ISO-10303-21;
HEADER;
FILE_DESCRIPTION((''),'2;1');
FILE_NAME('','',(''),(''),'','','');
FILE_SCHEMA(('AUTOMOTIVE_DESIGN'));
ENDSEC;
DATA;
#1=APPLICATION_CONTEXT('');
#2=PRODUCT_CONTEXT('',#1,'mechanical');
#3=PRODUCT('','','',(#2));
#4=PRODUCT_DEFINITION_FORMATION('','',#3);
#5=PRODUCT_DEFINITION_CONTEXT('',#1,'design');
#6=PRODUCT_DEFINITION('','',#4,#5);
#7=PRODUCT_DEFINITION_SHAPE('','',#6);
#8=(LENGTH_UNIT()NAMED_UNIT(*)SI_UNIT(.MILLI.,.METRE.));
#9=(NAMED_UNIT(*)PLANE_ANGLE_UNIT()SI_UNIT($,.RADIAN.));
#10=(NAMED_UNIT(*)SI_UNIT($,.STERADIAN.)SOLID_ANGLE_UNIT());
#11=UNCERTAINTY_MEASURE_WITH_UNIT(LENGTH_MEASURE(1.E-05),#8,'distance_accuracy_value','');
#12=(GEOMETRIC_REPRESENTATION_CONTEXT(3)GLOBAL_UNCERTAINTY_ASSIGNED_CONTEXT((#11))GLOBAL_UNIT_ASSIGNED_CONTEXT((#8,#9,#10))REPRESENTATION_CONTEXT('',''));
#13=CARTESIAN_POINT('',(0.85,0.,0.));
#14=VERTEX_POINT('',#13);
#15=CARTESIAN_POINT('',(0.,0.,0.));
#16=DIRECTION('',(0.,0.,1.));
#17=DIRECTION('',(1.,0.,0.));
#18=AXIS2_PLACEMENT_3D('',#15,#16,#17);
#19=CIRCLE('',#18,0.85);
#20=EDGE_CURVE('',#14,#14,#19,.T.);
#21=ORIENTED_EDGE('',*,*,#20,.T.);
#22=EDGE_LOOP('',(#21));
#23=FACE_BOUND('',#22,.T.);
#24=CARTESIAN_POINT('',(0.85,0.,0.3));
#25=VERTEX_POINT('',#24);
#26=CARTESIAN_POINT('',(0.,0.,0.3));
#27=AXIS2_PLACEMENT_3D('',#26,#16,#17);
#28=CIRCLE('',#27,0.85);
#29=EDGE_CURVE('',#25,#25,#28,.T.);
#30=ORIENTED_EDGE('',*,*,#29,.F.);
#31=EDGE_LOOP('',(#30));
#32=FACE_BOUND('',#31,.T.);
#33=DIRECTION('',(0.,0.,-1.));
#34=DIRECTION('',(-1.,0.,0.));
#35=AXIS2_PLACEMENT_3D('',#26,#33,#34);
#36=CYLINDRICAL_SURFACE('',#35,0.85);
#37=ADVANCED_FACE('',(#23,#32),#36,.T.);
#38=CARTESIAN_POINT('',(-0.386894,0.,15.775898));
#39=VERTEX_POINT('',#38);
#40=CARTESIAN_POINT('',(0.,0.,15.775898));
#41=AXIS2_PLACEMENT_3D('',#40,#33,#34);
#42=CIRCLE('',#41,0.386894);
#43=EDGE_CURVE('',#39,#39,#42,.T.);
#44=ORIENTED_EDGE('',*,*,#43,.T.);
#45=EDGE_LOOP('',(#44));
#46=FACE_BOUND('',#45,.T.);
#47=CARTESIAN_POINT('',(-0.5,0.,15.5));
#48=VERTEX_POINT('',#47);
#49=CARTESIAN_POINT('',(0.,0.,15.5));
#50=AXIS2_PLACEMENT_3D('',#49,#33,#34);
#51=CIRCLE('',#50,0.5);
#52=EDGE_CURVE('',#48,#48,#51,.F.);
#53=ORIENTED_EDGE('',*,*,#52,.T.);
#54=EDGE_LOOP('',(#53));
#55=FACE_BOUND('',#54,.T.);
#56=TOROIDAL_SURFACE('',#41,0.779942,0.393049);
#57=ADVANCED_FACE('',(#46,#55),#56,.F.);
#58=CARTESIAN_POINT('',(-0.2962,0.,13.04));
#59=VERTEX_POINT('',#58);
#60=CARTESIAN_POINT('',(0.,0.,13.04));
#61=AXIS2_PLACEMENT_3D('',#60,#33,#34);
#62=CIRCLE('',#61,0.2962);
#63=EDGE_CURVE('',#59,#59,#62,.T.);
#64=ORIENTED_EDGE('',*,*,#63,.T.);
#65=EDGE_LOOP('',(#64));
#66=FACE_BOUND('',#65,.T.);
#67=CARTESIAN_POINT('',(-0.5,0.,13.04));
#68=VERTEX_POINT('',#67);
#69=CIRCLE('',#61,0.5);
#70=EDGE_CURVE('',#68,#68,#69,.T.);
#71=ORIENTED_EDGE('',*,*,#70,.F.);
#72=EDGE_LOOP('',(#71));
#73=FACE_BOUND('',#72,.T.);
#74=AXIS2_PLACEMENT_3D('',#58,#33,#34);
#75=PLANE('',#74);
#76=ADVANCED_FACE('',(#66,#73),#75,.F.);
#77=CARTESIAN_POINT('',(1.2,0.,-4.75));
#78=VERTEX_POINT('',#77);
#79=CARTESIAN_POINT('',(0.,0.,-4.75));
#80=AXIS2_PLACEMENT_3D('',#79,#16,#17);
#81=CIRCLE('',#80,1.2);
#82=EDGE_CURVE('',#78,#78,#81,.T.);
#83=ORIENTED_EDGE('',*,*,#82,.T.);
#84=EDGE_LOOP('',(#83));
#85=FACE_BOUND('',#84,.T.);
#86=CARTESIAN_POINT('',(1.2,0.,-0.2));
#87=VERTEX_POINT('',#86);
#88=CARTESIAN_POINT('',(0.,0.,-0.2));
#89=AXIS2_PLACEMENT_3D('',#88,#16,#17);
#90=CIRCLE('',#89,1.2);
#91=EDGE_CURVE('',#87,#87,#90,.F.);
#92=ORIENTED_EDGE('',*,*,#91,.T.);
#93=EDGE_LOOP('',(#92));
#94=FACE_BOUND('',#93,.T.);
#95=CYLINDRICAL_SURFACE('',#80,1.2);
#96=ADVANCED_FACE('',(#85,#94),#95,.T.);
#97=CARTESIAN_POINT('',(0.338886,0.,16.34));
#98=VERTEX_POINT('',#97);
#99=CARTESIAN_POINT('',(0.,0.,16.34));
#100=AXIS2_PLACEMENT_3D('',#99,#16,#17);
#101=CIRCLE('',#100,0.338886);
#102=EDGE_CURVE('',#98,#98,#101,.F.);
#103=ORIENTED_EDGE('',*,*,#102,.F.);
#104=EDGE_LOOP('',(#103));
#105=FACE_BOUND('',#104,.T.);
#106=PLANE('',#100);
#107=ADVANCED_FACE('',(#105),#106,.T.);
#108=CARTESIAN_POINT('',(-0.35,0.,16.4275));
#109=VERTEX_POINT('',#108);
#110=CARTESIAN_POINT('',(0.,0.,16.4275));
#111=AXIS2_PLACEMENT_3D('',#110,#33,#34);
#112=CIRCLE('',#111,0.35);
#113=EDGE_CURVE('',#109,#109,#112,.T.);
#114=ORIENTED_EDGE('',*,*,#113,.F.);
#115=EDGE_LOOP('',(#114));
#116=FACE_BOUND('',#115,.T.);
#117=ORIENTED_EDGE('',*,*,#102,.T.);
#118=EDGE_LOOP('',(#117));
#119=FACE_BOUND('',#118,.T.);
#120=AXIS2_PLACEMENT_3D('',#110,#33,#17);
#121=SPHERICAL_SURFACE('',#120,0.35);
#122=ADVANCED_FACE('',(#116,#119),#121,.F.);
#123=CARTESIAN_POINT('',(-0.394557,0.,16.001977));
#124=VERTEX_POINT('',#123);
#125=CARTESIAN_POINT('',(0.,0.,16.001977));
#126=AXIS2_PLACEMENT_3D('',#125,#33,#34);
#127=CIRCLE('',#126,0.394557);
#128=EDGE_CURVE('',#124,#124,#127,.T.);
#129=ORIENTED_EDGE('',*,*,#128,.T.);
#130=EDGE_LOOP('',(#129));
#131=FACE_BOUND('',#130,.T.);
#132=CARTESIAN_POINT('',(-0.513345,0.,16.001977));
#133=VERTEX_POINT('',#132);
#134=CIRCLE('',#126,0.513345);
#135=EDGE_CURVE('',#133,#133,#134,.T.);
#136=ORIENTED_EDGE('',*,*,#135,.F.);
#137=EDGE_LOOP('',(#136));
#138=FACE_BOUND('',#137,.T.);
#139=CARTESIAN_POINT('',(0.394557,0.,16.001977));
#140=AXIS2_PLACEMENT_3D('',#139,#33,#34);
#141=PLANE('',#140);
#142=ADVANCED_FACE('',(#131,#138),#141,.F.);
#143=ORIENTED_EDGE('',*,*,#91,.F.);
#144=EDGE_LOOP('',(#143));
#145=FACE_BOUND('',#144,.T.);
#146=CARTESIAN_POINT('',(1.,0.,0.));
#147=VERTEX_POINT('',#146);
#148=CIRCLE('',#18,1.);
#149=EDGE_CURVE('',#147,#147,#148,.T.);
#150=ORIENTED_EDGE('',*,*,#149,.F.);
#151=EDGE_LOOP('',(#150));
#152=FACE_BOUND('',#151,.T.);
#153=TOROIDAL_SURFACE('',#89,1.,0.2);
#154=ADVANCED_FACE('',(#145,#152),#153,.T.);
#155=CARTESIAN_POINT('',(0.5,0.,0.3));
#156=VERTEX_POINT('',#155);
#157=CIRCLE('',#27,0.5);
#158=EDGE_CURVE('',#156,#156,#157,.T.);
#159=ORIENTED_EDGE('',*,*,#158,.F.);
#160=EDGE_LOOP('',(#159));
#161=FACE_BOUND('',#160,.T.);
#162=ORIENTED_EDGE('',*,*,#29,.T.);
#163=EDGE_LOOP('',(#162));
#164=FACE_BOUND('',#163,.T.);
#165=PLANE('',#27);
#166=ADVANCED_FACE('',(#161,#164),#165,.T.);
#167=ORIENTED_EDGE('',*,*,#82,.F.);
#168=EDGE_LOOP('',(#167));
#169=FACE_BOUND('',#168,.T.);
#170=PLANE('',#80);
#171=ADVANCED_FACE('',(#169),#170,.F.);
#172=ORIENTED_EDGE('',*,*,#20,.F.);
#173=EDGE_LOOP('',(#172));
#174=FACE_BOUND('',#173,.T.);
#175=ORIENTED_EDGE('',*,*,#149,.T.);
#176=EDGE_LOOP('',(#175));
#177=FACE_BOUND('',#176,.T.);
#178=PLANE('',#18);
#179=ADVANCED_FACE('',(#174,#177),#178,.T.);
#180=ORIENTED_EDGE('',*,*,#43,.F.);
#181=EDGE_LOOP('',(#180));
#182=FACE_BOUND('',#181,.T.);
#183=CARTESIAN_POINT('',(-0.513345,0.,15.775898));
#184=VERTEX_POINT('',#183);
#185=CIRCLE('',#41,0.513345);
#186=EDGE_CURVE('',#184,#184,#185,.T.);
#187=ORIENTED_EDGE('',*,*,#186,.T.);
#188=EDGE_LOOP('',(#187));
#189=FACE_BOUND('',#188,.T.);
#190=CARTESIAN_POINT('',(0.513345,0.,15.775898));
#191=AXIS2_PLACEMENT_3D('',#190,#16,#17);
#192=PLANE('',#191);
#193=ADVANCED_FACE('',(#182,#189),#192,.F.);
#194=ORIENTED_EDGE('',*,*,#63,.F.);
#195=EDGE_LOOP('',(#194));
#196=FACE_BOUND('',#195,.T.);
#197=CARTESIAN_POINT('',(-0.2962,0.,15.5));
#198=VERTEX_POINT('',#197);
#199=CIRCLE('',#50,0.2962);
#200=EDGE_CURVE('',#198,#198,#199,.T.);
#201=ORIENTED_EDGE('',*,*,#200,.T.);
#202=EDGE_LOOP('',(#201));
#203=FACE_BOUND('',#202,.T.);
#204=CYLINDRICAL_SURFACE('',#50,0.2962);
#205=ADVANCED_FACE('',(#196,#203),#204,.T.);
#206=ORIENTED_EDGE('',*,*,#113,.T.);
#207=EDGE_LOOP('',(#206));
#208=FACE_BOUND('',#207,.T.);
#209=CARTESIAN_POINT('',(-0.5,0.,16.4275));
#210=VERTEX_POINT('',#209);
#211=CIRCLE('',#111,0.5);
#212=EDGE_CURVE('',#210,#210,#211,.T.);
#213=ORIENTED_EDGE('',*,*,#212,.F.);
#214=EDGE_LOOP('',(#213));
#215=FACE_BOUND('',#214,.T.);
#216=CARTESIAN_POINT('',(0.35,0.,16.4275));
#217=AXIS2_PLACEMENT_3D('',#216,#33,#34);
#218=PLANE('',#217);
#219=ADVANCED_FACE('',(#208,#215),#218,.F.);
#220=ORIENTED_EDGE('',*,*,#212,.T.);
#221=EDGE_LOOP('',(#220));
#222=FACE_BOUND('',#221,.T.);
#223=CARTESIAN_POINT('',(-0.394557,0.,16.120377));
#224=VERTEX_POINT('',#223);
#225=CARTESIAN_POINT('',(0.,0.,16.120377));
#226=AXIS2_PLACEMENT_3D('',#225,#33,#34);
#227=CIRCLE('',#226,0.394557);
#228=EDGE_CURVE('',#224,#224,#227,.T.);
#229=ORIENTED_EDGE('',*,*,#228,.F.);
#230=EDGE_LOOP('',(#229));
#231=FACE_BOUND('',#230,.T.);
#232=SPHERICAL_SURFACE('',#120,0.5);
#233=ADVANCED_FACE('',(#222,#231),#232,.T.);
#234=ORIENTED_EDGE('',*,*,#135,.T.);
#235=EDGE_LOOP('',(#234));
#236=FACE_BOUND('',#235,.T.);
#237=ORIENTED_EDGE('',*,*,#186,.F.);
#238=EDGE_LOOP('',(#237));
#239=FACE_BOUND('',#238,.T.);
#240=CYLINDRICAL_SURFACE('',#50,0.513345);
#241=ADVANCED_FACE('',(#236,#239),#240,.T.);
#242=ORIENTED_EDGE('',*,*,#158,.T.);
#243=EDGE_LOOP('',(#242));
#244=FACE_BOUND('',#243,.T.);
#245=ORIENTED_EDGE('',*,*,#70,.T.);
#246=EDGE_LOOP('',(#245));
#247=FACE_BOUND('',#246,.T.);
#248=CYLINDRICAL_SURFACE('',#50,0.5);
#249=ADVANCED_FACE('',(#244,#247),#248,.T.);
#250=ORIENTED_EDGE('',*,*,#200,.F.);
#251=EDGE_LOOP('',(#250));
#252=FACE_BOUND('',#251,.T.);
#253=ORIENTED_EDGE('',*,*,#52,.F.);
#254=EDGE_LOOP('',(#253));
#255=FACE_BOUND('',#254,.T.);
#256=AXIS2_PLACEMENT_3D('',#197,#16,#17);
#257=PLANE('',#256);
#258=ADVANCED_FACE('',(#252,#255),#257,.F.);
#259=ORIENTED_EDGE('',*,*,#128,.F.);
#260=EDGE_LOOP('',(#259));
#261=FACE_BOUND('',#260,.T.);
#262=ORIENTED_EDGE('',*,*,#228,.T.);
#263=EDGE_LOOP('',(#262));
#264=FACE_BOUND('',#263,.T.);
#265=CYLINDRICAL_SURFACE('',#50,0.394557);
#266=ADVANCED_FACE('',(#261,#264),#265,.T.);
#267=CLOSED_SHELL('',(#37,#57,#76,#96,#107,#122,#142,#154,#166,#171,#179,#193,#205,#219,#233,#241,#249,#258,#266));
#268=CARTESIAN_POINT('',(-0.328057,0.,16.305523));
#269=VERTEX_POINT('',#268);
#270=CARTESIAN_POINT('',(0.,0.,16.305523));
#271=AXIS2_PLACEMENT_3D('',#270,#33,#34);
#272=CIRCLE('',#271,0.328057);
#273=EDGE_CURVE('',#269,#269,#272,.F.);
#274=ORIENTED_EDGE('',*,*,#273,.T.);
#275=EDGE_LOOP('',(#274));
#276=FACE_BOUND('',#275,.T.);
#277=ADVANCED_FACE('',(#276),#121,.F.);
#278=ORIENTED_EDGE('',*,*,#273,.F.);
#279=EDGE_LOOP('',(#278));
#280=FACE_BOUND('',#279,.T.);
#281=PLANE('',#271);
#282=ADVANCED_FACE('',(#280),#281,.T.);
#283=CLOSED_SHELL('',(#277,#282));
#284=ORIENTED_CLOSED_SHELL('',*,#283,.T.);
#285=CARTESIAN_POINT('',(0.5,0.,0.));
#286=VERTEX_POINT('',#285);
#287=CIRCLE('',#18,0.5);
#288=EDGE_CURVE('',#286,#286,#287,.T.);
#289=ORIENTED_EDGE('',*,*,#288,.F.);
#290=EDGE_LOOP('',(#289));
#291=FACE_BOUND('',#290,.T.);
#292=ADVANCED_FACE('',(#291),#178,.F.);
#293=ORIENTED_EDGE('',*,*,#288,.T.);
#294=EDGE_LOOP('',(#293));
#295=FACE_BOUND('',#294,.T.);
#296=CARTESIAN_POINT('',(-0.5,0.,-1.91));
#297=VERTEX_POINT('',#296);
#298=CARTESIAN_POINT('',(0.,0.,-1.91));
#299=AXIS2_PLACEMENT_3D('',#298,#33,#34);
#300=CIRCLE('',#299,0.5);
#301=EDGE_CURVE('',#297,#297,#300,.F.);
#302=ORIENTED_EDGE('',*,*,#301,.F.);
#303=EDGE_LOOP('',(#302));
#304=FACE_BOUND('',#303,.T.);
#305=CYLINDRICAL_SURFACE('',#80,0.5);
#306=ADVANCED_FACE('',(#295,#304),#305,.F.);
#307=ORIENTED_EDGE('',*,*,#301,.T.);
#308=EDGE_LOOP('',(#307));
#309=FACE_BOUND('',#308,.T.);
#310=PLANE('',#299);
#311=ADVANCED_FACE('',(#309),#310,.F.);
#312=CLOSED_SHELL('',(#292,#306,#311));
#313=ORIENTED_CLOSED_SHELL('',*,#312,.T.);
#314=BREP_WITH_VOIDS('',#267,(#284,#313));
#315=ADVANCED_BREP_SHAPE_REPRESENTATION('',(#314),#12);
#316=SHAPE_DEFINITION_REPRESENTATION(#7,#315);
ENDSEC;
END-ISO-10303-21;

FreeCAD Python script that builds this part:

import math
import FreeCAD as App
import Part
import Sketcher
from FreeCAD import Vector
Q = App.Units.Quantity


def edges_at(feature, points):
    """Names of the edges that pass closest to the given points."""
    edges = feature.Shape.Edges
    near = lambda p: min(range(len(edges)), key=lambda i: edges[i].distToShape(Part.Vertex(*p))[0])
    return sorted({f"Edge{near(p) + 1}" for p in points})

doc = App.newDocument("Part")
body = doc.addObject("PartDesign::Body", "Body")

# Sketch on XY plane
sketch1 = body.newObject("Sketcher::SketchObject", "Sketch")
sketch1.AttachmentSupport = (doc.getObject("XY_Plane"), [""])
sketch1.MapMode = "FlatFace"
sketch1.addGeometry(Part.Circle(Vector(0, 0, 0), Vector(0, 0, 1), 0.5), False)
sketch1.addConstraint([
    Sketcher.Constraint("Coincident", 0, 3, -1, 1),
    Sketcher.Constraint("Diameter", 0, Q("1 mm")),
])
pad1 = body.newObject("PartDesign::Pad", "Pad")
pad1.Profile = sketch1
pad1.Length = 15.5
body2 = doc.addObject("PartDesign::Body", "Body001")

# Sketch on XY plane
sketch2 = body2.newObject("Sketcher::SketchObject", "Sketch001")
sketch2.AttachmentSupport = (doc.getObject("XY_Plane001"), [""])
sketch2.MapMode = "FlatFace"
sketch2.addGeometry([
    Part.Circle(Vector(0, 0, 0), Vector(0, 0, 1), 1.2),
    Part.Circle(Vector(0, 0, 0), Vector(0, 0, 1), 0.5),
], False)
sketch2.addConstraint([
    Sketcher.Constraint("Coincident", 0, 3, -1, 1),
    Sketcher.Constraint("Coincident", 1, 3, -1, 1),
    Sketcher.Constraint("Diameter", 1, Q("1 mm")),
    Sketcher.Constraint("Diameter", 0, Q("2.4 mm")),
])
pad2 = body2.newObject("PartDesign::Pad", "Pad001")
pad2.Profile = sketch2
pad2.Length = 4.75
pad2.Reversed = True
doc.recompute()

fillet = body2.newObject("PartDesign::Fillet", "Fillet")
fillet.Base = (pad2, edges_at(pad2, [(-1.2, 0, 0)]))
fillet.Radius = 0.2
body.AllowCompound = True
doc.recompute()

boolean = body.newObject("PartDesign::Boolean", "Boolean")
boolean.Type = "Fuse"
boolean.addObjects([body2])

# Sketch on XY plane
sketch3 = body.newObject("Sketcher::SketchObject", "Sketch002")
sketch3.AttachmentSupport = (doc.getObject("XY_Plane"), [""])
sketch3.MapMode = "FlatFace"
sketch3.addGeometry(Part.Circle(Vector(0, 0, 0), Vector(0, 0, 1), 0.85), False)
sketch3.addConstraint([
    Sketcher.Constraint("Coincident", 0, 3, -1, 1),
    Sketcher.Constraint("Diameter", 0, Q("1.7 mm")),
])
pad3 = body.newObject("PartDesign::Pad", "Pad002")
pad3.Profile = sketch3
pad3.Length = 0.3

# Sketch on XZ plane
sketch4 = body.newObject("Sketcher::SketchObject", "Sketch003")
sketch4.AttachmentSupport = (doc.getObject("XZ_Plane"), [""])
sketch4.MapMode = "FlatFace"
sketch4.addGeometry([
    Part.LineSegment(Vector(0.5, 15.5, 0), Vector(0, 15.5, 0)),  # 0
    Part.LineSegment(Vector(0, 15.5, 0), Vector(0, 16.0775, 0)),  # 1
    Part.ArcOfCircle(Part.Circle(Vector(0, 16.4275, 0), Vector(0, 0, 1), 0.35), math.radians(-90), math.radians(0)),  # 2
    Part.LineSegment(Vector(0.35, 16.4275, 0), Vector(0.5, 16.4275, 0)),  # 3
    Part.ArcOfCircle(Part.Circle(Vector(0, 16.4275, 0), Vector(0, 0, 1), 0.5), math.radians(-37.89715), math.radians(0)),  # 4
    Part.LineSegment(Vector(0.394557, 16.120377, 0), Vector(0.394557, 16.001977, 0)),  # 5
    Part.LineSegment(Vector(0.394557, 16.001977, 0), Vector(0.513345, 16.001977, 0)),  # 6
    Part.LineSegment(Vector(0.513345, 16.001977, 0), Vector(0.513345, 15.775898, 0)),  # 7
    Part.LineSegment(Vector(0.513345, 15.775898, 0), Vector(0.386894, 15.775898, 0)),  # 8
    Part.ArcOfCircle(Part.Circle(Vector(0.779942, 15.775898, 0), Vector(0, 0, 1), 0.393049), math.radians(-180), math.radians(-135.416907)),  # 9
], False)
sketch4.addConstraint([
    Sketcher.Constraint("Coincident", 0, 2, 1, 1),
    Sketcher.Constraint("Coincident", 1, 2, 2, 1),
    Sketcher.Constraint("Coincident", 2, 2, 3, 1),
    Sketcher.Constraint("Coincident", 3, 2, 4, 2),
    Sketcher.Constraint("Coincident", 4, 1, 5, 1),
    Sketcher.Constraint("Coincident", 5, 2, 6, 1),
    Sketcher.Constraint("Coincident", 6, 2, 7, 1),
    Sketcher.Constraint("Coincident", 7, 2, 8, 1),
    Sketcher.Constraint("Coincident", 8, 2, 9, 1),
    Sketcher.Constraint("Coincident", 9, 2, 0, 1),
    Sketcher.Constraint("Horizontal", 0),
    Sketcher.Constraint("Vertical", 1),
    Sketcher.Constraint("Horizontal", 3),
    Sketcher.Constraint("Vertical", 5),
    Sketcher.Constraint("Horizontal", 6),
    Sketcher.Constraint("Vertical", 7),
    Sketcher.Constraint("Horizontal", 8),
    Sketcher.Constraint("Coincident", 4, 3, 2, 3),
    Sketcher.Constraint("PointOnObject", 2, 3, -2),
    Sketcher.Constraint("PointOnObject", 0, 2, -2),
    Sketcher.Constraint("Horizontal", 4, 3, 2, 2),
    Sketcher.Constraint("Horizontal", 9, 3, 7, 2),
    Sketcher.Constraint("Vertical", 3, 2, 9, 2),
    Sketcher.Constraint("Radius", 4, Q("0.5 mm")),
    Sketcher.Constraint("Radius", 2, Q("0.35 mm")),
    Sketcher.Constraint("DistanceY", -1, 1, 0, 2, Q("15.5 mm")),
    Sketcher.Constraint("Radius", 9, Q("0.393049 mm")),
    Sketcher.Constraint("DistanceY", 1, 1, 1, 2, Q("0.5775 mm")),
    Sketcher.Constraint("DistanceY", 5, 2, 5, 1, Q("0.1184 mm")),
    Sketcher.Constraint("DistanceX", 8, 2, 8, 1, Q("0.126451 mm")),
    Sketcher.Constraint("DistanceY", 7, 2, 7, 1, Q("0.226079 mm")),
    Sketcher.Constraint("DistanceX", 6, 1, 6, 2, Q("0.118787 mm")),
])
revolution = body.newObject("PartDesign::Revolution", "Revolution")
revolution.Profile = sketch4
revolution.ReferenceAxis = (sketch4, ["V_Axis"])
revolution.Angle = 360

# Sketch on XZ plane
sketch5 = body.newObject("Sketcher::SketchObject", "Sketch004")
sketch5.AttachmentSupport = (doc.getObject("XZ_Plane"), [""])
sketch5.MapMode = "FlatFace"
sketch5.addGeometry([
    Part.LineSegment(Vector(-0.465576, 16.305523, 0), Vector(-0.465576, 16.34, 0)),
    Part.LineSegment(Vector(-0.465576, 16.34, 0), Vector(0, 16.34, 0)),
    Part.LineSegment(Vector(0, 16.34, 0), Vector(0, 16.305523, 0)),
    Part.LineSegment(Vector(0, 16.305523, 0), Vector(-0.465576, 16.305523, 0)),
], False)
sketch5.addConstraint([
    Sketcher.Constraint("Coincident", 0, 2, 1, 1),
    Sketcher.Constraint("Coincident", 1, 2, 2, 1),
    Sketcher.Constraint("Coincident", 2, 2, 3, 1),
    Sketcher.Constraint("Coincident", 3, 2, 0, 1),
    Sketcher.Constraint("Vertical", 0),
    Sketcher.Constraint("Horizontal", 1),
    Sketcher.Constraint("Vertical", 2),
    Sketcher.Constraint("Horizontal", 3),
    Sketcher.Constraint("PointOnObject", 1, 2, -2),
    Sketcher.Constraint("DistanceY", -1, 1, 0, 2, Q("16.34 mm")),
    Sketcher.Constraint("DistanceX", 1, 1, 1, 2, Q("0.465576 mm")),
    Sketcher.Constraint("DistanceY", 0, 1, 0, 2, Q("0.034477 mm")),
])
revolution2 = body.newObject("PartDesign::Revolution", "Revolution001")
revolution2.Profile = sketch5
revolution2.ReferenceAxis = (sketch5, ["V_Axis"])
revolution2.Angle = 360

# Sketch on XZ plane
sketch6 = body.newObject("Sketcher::SketchObject", "Sketch005")
sketch6.AttachmentSupport = (doc.getObject("XZ_Plane"), [""])
sketch6.MapMode = "FlatFace"
sketch6.addGeometry([
    Part.LineSegment(Vector(-1.553685, 13.04, 0), Vector(-1.553685, 15.5, 0)),
    Part.LineSegment(Vector(-1.553685, 15.5, 0), Vector(-0.2962, 15.5, 0)),
    Part.LineSegment(Vector(-0.2962, 15.5, 0), Vector(-0.2962, 13.04, 0)),
    Part.LineSegment(Vector(-0.2962, 13.04, 0), Vector(-1.553685, 13.04, 0)),
], False)
sketch6.addConstraint([
    Sketcher.Constraint("Coincident", 0, 2, 1, 1),
    Sketcher.Constraint("Coincident", 1, 2, 2, 1),
    Sketcher.Constraint("Coincident", 2, 2, 3, 1),
    Sketcher.Constraint("Coincident", 3, 2, 0, 1),
    Sketcher.Constraint("Vertical", 0),
    Sketcher.Constraint("Horizontal", 1),
    Sketcher.Constraint("Vertical", 2),
    Sketcher.Constraint("Horizontal", 3),
    Sketcher.Constraint("DistanceY", 0, 1, 0, 2, Q("2.46 mm")),
    Sketcher.Constraint("DistanceY", -1, 1, 0, 2, Q("15.5 mm")),
    Sketcher.Constraint("DistanceX", 1, 2, -1, 1, Q("0.2962 mm")),
    Sketcher.Constraint("DistanceX", 1, 1, 1, 2, Q("1.257485 mm")),
])
groove = body.newObject("PartDesign::Groove", "Groove")
groove.Profile = sketch6
groove.ReferenceAxis = (sketch6, ["V_Axis"])
groove.Angle = 360

# Sketch on XY plane
sketch7 = body.newObject("Sketcher::SketchObject", "Sketch006")
sketch7.AttachmentSupport = (doc.getObject("XY_Plane"), [""])
sketch7.MapMode = "FlatFace"
sketch7.AttachmentOffset = App.Placement(Vector(0, 0, -4.75), App.Rotation())
sketch7.addGeometry(Part.Circle(Vector(0, 0, 0), Vector(0, 0, 1), 0.5), False)
sketch7.addConstraint([
    Sketcher.Constraint("Coincident", 0, 3, -1, 1),
    Sketcher.Constraint("Diameter", 0, Q("1 mm")),
])
pad4 = body.newObject("PartDesign::Pad", "Pad003")
pad4.Profile = sketch7
pad4.Length = 2.84

doc.recompute()
